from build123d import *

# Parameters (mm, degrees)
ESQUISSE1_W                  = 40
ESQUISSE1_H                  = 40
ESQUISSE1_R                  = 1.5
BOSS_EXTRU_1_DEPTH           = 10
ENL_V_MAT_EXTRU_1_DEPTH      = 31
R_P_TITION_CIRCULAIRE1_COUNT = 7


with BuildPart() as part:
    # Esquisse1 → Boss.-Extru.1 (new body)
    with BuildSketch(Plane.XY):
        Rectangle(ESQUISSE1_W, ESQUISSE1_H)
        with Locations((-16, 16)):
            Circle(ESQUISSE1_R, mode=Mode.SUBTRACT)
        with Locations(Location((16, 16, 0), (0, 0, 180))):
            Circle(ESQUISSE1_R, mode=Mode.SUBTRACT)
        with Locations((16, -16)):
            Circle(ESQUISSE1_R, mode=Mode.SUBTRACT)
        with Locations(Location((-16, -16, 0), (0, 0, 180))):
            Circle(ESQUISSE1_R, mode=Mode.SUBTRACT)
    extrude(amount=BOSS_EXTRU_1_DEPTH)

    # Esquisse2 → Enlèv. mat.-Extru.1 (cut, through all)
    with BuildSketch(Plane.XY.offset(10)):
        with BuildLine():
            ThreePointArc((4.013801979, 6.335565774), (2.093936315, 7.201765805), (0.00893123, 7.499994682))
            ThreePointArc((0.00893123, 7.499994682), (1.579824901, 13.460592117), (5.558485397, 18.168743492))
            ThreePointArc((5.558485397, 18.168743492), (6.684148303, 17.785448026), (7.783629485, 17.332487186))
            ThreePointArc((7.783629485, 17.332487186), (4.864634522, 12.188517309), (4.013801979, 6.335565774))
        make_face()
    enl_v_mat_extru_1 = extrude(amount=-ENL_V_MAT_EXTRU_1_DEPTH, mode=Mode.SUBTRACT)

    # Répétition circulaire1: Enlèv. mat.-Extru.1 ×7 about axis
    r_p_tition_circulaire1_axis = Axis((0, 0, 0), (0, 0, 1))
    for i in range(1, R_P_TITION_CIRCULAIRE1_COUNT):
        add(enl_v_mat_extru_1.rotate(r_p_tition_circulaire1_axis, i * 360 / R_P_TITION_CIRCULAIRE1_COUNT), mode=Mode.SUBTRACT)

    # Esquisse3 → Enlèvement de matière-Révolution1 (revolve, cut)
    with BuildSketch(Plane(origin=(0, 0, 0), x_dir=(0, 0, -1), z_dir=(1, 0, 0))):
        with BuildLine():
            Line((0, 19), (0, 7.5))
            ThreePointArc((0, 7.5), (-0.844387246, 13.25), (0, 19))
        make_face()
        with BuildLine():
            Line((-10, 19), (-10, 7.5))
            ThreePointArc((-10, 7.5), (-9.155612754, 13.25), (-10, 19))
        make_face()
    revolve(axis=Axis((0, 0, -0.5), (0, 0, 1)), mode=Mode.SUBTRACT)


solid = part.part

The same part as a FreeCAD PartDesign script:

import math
import FreeCAD as App
import Part
import Sketcher
from FreeCAD import Vector

doc = App.newDocument("Part")
body = doc.addObject("PartDesign::Body", "Body")

# Sketch on XY plane
sketch1 = body.newObject("Sketcher::SketchObject", "Sketch")
sketch1.AttachmentSupport = (doc.getObject("XY_Plane"), [""])
sketch1.MapMode = "FlatFace"
sketch1.addGeometry(Part.LineSegment(Vector(-20, 20, 0), Vector(-20, -20, 0)), False)
sketch1.addGeometry(Part.LineSegment(Vector(-20, -20, 0), Vector(20, -20, 0)), False)
sketch1.addGeometry(Part.LineSegment(Vector(20, -20, 0), Vector(20, 20, 0)), False)
sketch1.addGeometry(Part.LineSegment(Vector(20, 20, 0), Vector(-20, 20, 0)), False)
sketch1.addGeometry(Part.Circle(Vector(-16, -16, 0), Vector(0, 0, 1), 1.5), False)
sketch1.addGeometry(Part.Circle(Vector(16, -16, 0), Vector(0, 0, 1), 1.5), False)
sketch1.addGeometry(Part.Circle(Vector(-16, 16, 0), Vector(0, 0, 1), 1.5), False)
sketch1.addGeometry(Part.Circle(Vector(16, 16, 0), Vector(0, 0, 1), 1.5), False)
sketch1.addConstraint(Sketcher.Constraint("Coincident", 0, 2, 1, 1))
sketch1.addConstraint(Sketcher.Constraint("Coincident", 1, 2, 2, 1))
sketch1.addConstraint(Sketcher.Constraint("Coincident", 2, 2, 3, 1))
sketch1.addConstraint(Sketcher.Constraint("Coincident", 3, 2, 0, 1))
sketch1.addConstraint(Sketcher.Constraint("Vertical", 0))
sketch1.addConstraint(Sketcher.Constraint("Horizontal", 1))
sketch1.addConstraint(Sketcher.Constraint("Vertical", 2))
sketch1.addConstraint(Sketcher.Constraint("Horizontal", 3))
sketch1.addConstraint(Sketcher.Constraint("Equal", 4, 5))
sketch1.addConstraint(Sketcher.Constraint("Equal", 5, 6))
sketch1.addConstraint(Sketcher.Constraint("Equal", 6, 7))
sketch1.addConstraint(Sketcher.Constraint("Symmetric", 5, 3, 6, 3, -1, 1))
sketch1.addConstraint(Sketcher.Constraint("Symmetric", 4, 3, 7, 3, -1, 1))
sketch1.addConstraint(Sketcher.Constraint("Symmetric", 0, 2, 2, 2, -1, 1))
sketch1.addConstraint(Sketcher.Constraint("Symmetric", 4, 3, 5, 3, -2))
sketch1.addConstraint(Sketcher.Constraint("Equal", 3, 0))
sketch1.addConstraint(Sketcher.Constraint("Diameter", 4, 3.0))
sketch1.addConstraint(Sketcher.Constraint("DistanceX", 1, 1, 1, 2, 40.0))
sketch1.addConstraint(Sketcher.Constraint("DistanceX", 4, 3, -1, 1, 16.0))
sketch1.addConstraint(Sketcher.Constraint("DistanceY", 4, 3, -1, 1, 16.0))
pad1 = body.newObject("PartDesign::Pad", "Pad")
pad1.Profile = sketch1
pad1.Length = 10

# Sketch on XY plane
sketch2 = body.newObject("Sketcher::SketchObject", "Sketch001")
sketch2.AttachmentSupport = (doc.getObject("XY_Plane"), [""])
sketch2.MapMode = "FlatFace"
sketch2.AttachmentOffset = App.Placement(Vector(0, 0, 10), App.Rotation())
sketch2.addGeometry(Part.ArcOfCircle(Part.Circle(Vector(0, 0, 0), Vector(0, 0, 1), 7.5), math.radians(57.644315), math.radians(89.93177)), False)
sketch2.addGeometry(Part.ArcOfCircle(Part.Circle(Vector(20, 7, 0), Vector(0, 0, 1), 16), math.radians(139.775784), math.radians(182.380014)), False)
sketch2.addGeometry(Part.ArcOfCircle(Part.Circle(Vector(0, 0, 0), Vector(0, 0, 1), 19), math.radians(65.816226), math.radians(72.989206)), False)
sketch2.addGeometry(Part.ArcOfCircle(Part.Circle(Vector(14, 7, 0), Vector(0, 0, 1), 14), math.radians(127.08257), math.radians(177.953309)), False)
sketch2.addConstraint(Sketcher.Constraint("Coincident", 0, 1, 1, 2))
sketch2.addConstraint(Sketcher.Constraint("Coincident", 1, 1, 2, 1))
sketch2.addConstraint(Sketcher.Constraint("Coincident", 2, 2, 3, 1))
sketch2.addConstraint(Sketcher.Constraint("Coincident", 3, 2, 0, 2))
sketch2.addConstraint(Sketcher.Constraint("Coincident", 0, 3, -1, 1))
sketch2.addConstraint(Sketcher.Constraint("Coincident", 2, 3, -1, 1))
sketch2.addConstraint(Sketcher.Constraint("Horizontal", 1, 3, 3, 3))
sketch2.addConstraint(Sketcher.Constraint("Radius", 1, 16.0))
sketch2.addConstraint(Sketcher.Constraint("Radius", 2, 19.0))
sketch2.addConstraint(Sketcher.Constraint("Radius", 3, 14.0))
sketch2.addConstraint(Sketcher.Constraint("Radius", 0, 7.5))
sketch2.addConstraint(Sketcher.Constraint("DistanceX", -1, 1, 1, 3, 20.0))
sketch2.addConstraint(Sketcher.Constraint("DistanceY", -1, 1, 1, 3, 7.0))
sketch2.addConstraint(Sketcher.Constraint("DistanceX", -1, 1, 3, 3, 14.0))
pocket1 = body.newObject("PartDesign::Pocket", "Pocket")
pocket1.Profile = sketch2
pocket1.Type = "ThroughAll"
doc.recompute()

polarpattern = body.newObject("PartDesign::PolarPattern", "PolarPattern")
polarpattern.Originals = [pocket1]
polarpattern.Axis = (doc.getObject("Z_Axis"), [""])
polarpattern.Angle = 360
polarpattern.Occurrences = 7
body.Tip = polarpattern

# Sketch on YZ plane
sketch3 = body.newObject("Sketcher::SketchObject", "Sketch002")
sketch3.AttachmentSupport = (doc.getObject("YZ_Plane"), [""])
sketch3.MapMode = "FlatFace"
sketch3.addGeometry(Part.LineSegment(Vector(7.5, 0, 0), Vector(19, 0, 0)), False)
sketch3.addGeometry(Part.ArcOfCircle(Part.Circle(Vector(13.25, -19.155613, 0), Vector(0, 0, 1), 20), math.radians(73.291656), math.radians(106.708344)), False)
sketch3.addGeometry(Part.LineSegment(Vector(19, 10, 0), Vector(7.5, 10, 0)), False)
sketch3.addGeometry(Part.ArcOfCircle(Part.Circle(Vector(13.25, 29.155613, 0), Vector(0, 0, 1), 20), math.radians(-106.708344), math.radians(-73.291656)), False)
sketch3.addConstraint(Sketcher.Constraint("Coincident", 0, 1, 1, 2))
sketch3.addConstraint(Sketcher.Constraint("Coincident", 1, 1, 0, 2))
sketch3.addConstraint(Sketcher.Constraint("Coincident", 2, 1, 3, 2))
sketch3.addConstraint(Sketcher.Constraint("Coincident", 3, 1, 2, 2))
sketch3.addConstraint(Sketcher.Constraint("Horizontal", 0))
sketch3.addConstraint(Sketcher.Constraint("Horizontal", 2))
sketch3.addConstraint(Sketcher.Constraint("Equal", 1, 3))
sketch3.addConstraint(Sketcher.Constraint("PointOnObject", 0, 1, -1))
sketch3.addConstraint(Sketcher.Constraint("Vertical", 1, 3, 3, 3))
sketch3.addConstraint(Sketcher.Constraint("Vertical", 1, 1, 2, 1))
sketch3.addConstraint(Sketcher.Constraint("Radius", 1, 20.0))
sketch3.addConstraint(Sketcher.Constraint("DistanceX", 0, 1, 0, 2, 11.5))
sketch3.addConstraint(Sketcher.Constraint("DistanceX", -1, 1, 1, 1, 19.0))
sketch3.addConstraint(Sketcher.Constraint("DistanceY", -1, 1, 2, 1, 10.0))
groove = body.newObject("PartDesign::Groove", "Groove")
groove.Profile = sketch3
groove.ReferenceAxis = (sketch3, ["V_Axis"])
groove.Angle = 360

doc.recompute()
